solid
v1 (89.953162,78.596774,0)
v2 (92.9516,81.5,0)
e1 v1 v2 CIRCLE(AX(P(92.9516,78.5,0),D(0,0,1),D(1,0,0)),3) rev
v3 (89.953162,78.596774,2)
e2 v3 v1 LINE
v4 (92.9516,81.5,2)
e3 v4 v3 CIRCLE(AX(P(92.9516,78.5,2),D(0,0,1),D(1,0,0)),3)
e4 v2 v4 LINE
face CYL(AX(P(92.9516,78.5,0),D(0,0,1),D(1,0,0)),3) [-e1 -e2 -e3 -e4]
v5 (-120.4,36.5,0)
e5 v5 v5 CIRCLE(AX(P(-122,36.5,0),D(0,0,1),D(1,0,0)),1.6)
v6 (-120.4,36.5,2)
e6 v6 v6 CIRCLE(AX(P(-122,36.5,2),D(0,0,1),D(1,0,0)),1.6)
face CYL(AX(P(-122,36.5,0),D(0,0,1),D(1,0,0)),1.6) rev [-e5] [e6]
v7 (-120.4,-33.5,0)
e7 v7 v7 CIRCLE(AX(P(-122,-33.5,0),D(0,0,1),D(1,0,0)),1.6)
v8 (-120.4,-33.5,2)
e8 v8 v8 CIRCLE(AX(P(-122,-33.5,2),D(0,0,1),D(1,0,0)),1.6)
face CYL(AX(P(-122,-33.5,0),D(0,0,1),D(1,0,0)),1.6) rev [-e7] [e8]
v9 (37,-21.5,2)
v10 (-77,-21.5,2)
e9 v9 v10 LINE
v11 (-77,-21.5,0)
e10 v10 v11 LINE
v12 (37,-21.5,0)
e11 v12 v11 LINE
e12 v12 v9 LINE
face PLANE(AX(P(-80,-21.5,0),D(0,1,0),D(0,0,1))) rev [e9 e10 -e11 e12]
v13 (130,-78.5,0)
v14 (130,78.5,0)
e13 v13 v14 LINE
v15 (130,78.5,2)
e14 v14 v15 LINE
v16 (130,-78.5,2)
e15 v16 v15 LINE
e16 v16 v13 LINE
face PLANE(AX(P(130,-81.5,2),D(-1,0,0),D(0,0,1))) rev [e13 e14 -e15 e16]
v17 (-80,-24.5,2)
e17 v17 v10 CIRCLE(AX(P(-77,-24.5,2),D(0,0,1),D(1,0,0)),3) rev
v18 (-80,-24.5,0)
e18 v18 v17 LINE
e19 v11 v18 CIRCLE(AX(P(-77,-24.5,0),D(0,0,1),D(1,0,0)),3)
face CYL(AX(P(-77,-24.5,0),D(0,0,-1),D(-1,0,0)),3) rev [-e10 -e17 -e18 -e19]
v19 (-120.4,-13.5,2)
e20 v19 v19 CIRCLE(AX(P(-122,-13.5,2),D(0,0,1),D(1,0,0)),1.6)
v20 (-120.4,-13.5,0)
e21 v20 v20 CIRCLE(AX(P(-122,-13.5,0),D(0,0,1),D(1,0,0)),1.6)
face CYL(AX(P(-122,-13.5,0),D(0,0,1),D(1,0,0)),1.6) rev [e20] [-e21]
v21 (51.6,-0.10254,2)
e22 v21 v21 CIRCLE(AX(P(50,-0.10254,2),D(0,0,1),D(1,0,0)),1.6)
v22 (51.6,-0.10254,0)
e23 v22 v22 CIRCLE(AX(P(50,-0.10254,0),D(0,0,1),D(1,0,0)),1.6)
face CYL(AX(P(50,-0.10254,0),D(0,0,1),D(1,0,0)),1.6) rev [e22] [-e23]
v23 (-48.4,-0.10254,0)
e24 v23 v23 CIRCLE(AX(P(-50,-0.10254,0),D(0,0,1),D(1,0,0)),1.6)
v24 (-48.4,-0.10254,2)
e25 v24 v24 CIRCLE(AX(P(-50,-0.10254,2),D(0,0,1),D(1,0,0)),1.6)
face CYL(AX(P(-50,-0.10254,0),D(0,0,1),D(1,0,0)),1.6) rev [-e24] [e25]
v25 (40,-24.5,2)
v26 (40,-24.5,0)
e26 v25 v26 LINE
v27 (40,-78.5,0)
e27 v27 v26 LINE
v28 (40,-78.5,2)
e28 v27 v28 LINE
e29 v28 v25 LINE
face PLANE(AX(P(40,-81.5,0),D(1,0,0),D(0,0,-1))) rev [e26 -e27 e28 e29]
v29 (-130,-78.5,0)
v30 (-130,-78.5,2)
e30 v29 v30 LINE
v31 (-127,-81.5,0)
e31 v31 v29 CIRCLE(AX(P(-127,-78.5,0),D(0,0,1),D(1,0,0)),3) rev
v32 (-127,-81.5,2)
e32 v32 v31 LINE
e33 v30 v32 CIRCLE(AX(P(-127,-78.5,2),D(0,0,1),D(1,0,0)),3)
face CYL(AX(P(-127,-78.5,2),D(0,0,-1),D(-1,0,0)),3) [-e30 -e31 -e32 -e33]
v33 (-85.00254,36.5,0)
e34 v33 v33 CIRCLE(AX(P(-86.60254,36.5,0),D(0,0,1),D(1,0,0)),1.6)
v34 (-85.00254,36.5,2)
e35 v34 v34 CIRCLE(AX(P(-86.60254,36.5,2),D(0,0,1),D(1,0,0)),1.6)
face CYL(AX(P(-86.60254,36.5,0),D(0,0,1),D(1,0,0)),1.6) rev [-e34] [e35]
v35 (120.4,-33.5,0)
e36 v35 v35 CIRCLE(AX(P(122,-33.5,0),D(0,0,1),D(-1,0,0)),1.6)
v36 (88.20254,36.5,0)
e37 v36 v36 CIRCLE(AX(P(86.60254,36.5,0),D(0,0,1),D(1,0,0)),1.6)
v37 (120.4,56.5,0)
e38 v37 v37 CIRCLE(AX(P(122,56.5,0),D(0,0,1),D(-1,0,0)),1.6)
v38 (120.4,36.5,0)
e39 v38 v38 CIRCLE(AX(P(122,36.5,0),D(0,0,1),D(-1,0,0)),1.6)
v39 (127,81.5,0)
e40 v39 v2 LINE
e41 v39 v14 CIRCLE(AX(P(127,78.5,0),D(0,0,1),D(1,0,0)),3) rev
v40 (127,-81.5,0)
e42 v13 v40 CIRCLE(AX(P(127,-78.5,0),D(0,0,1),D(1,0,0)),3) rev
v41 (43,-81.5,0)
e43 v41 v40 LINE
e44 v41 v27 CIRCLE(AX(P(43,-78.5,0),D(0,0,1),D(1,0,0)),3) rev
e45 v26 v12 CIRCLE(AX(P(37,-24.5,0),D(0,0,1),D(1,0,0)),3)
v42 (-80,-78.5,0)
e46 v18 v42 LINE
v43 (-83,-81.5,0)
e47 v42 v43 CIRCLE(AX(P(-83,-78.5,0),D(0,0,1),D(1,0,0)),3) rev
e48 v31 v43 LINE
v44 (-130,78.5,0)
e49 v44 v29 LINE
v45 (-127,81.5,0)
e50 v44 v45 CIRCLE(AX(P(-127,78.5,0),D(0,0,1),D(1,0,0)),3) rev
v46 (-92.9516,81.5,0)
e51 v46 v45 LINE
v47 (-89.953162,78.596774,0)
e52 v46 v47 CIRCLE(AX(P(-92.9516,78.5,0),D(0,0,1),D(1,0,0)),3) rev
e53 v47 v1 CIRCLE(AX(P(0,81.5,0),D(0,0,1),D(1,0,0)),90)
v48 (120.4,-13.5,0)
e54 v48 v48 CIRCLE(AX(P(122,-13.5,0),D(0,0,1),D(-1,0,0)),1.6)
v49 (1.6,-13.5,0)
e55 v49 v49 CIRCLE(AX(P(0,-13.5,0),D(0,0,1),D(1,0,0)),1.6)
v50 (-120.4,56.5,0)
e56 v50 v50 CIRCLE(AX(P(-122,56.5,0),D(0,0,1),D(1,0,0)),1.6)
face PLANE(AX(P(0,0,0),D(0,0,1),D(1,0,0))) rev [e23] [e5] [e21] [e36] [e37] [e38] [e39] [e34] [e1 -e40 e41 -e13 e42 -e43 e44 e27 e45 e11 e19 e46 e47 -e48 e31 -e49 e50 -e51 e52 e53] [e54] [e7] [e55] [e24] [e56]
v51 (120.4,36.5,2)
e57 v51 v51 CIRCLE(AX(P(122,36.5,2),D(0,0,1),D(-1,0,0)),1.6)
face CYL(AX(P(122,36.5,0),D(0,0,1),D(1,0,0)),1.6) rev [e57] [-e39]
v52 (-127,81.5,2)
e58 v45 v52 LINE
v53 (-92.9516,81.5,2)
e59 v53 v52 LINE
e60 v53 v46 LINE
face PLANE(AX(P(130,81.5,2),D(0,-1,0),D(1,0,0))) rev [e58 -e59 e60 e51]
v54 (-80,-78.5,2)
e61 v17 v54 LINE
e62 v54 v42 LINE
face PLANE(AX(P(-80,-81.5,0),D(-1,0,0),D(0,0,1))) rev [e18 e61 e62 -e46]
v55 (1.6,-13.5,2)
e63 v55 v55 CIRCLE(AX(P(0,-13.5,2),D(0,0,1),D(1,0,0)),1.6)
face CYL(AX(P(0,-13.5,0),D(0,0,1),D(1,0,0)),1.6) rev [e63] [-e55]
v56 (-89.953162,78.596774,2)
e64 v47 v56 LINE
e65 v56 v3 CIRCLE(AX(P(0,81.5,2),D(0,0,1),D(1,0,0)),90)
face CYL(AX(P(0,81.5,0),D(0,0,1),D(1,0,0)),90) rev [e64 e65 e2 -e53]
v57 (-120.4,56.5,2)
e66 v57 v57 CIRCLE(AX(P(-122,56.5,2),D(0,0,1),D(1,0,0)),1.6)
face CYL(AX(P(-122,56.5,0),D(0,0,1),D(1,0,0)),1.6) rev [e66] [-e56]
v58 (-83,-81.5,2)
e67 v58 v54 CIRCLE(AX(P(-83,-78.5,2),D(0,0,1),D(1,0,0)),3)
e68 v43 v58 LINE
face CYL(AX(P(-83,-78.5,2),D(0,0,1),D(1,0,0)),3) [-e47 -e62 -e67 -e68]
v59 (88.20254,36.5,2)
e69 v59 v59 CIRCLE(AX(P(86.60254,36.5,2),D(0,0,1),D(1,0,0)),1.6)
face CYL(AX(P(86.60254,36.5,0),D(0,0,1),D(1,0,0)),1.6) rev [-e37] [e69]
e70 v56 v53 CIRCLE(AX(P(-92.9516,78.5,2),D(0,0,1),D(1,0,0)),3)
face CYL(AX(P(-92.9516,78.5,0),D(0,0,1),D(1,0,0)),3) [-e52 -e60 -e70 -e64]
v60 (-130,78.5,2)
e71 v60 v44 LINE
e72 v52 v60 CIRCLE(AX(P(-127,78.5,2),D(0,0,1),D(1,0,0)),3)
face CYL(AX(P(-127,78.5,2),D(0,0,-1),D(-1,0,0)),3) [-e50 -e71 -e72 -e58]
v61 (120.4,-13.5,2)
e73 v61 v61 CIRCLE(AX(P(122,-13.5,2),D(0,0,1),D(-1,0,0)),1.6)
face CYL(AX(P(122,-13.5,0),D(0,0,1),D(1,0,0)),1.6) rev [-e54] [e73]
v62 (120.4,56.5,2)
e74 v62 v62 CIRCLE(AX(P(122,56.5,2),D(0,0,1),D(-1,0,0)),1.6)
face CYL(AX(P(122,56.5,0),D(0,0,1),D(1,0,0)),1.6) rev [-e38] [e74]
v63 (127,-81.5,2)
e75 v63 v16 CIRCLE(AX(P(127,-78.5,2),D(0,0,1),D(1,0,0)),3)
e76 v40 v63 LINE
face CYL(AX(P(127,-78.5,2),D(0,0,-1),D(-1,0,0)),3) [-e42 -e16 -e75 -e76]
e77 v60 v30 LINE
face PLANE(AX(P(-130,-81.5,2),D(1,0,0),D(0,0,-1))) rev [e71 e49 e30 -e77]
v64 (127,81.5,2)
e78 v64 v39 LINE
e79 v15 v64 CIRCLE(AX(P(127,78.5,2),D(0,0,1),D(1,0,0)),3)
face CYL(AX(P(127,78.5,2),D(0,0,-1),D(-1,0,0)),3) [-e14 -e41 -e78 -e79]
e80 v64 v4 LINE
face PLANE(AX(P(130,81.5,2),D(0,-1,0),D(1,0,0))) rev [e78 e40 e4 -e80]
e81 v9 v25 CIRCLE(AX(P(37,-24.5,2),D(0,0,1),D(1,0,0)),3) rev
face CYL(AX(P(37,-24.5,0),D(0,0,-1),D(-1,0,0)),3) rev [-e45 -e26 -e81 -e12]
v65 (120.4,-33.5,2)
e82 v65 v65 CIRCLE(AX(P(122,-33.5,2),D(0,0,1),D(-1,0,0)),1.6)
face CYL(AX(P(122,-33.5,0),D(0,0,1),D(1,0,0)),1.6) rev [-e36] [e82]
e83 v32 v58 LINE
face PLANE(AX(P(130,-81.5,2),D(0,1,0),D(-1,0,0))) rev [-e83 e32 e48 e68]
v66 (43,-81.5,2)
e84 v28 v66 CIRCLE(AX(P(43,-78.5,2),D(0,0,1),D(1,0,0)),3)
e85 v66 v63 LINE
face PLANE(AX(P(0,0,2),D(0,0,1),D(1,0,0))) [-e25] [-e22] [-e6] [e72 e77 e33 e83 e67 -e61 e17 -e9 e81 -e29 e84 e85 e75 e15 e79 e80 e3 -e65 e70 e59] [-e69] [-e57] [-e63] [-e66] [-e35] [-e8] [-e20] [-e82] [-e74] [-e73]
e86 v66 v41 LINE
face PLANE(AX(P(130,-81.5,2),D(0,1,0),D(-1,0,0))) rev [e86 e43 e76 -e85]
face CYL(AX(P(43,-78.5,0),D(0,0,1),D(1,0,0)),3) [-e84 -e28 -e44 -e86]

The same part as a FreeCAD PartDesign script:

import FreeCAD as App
import Part
import Sketcher
from FreeCAD import Vector
Q = App.Units.Quantity


def edges_at(feature, points):
    """Names of the edges that pass closest to the given points."""
    edges = feature.Shape.Edges
    near = lambda p: min(range(len(edges)), key=lambda i: edges[i].distToShape(Part.Vertex(*p))[0])
    return sorted({f"Edge{near(p) + 1}" for p in points})


def add_polygon(sketch, points):
    """Adds a closed chain of lines whose ends are joined by coincident constraints."""
    first, n = sketch.GeometryCount, len(points)
    for a, b in zip(points, points[1:] + points[:1]):
        sketch.addGeometry(Part.LineSegment(App.Vector(*a, 0), App.Vector(*b, 0)), False)
    for i in range(n):
        sketch.addConstraint(Sketcher.Constraint("Coincident", first + i, 2, first + (i + 1) % n, 1))

doc = App.newDocument("Part")
body = doc.addObject("PartDesign::Body", "Body")

# Sketch on XY plane
sketch1 = doc.addObject("Sketcher::SketchObject", "Sketch")
body.addObject(sketch1)
sketch1.AttachmentSupport = (doc.XY_Plane, [""])
sketch1.MapMode = "FlatFace"
add_polygon(sketch1, [(-130, 82), (-130, -82), (130, -82), (130, 82)])  # lines 0-3
sketch1.addConstraint([
    Sketcher.Constraint("Vertical", 0),
    Sketcher.Constraint("Horizontal", 1),
    Sketcher.Constraint("Vertical", 2),
    Sketcher.Constraint("Horizontal", 3),
    Sketcher.Constraint("Symmetric", 0, 2, 2, 2, -1, 1),
    Sketcher.Constraint("DistanceX", 1, 1, 1, 2, Q("260 mm")),
    Sketcher.Constraint("DistanceY", 0, 2, 0, 1, Q("163 mm")),
])
pad1 = doc.addObject("PartDesign::Pad", "Pad")
body.addObject(pad1)
pad1.Profile = sketch1
pad1.Length = 2

# Sketch on XY plane
sketch2 = doc.addObject("Sketcher::SketchObject", "Sketch001")
body.addObject(sketch2)
sketch2.AttachmentSupport = (doc.XY_Plane, [""])
sketch2.MapMode = "FlatFace"
sketch2.AttachmentOffset = App.Placement(Vector(0, 0, 2), App.Rotation())
sketch2.addGeometry([
    Part.Circle(Vector(-122, -33.5, 0), Vector(0, 0, 1), 1.6),  # 0
    Part.Circle(Vector(-122, -13.5, 0), Vector(0, 0, 1), 1.6),  # 1
    Part.Circle(Vector(-122, 36.5, 0), Vector(0, 0, 1), 1.6),  # 2
    Part.Circle(Vector(-122, 56.5, 0), Vector(0, 0, 1), 1.6),  # 3
    Part.Circle(Vector(122, 56.5, 0), Vector(0, 0, 1), 1.6),  # 4
    Part.Circle(Vector(122, 36.5, 0), Vector(0, 0, 1), 1.6),  # 5
    Part.Circle(Vector(122, -13.5, 0), Vector(0, 0, 1), 1.6),  # 6
    Part.Circle(Vector(122, -33.5, 0), Vector(0, 0, 1), 1.6),  # 7
], False)
sketch2.addConstraint([
    Sketcher.Constraint("Equal", 0, 1),
    Sketcher.Constraint("Equal", 1, 2),
    Sketcher.Constraint("Equal", 2, 3),
    Sketcher.Constraint("Equal", 3, 4),
    Sketcher.Constraint("Equal", 4, 5),
    Sketcher.Constraint("Equal", 5, 6),
    Sketcher.Constraint("Equal", 6, 7),
    Sketcher.Constraint("Symmetric", 3, 3, 4, 3, -2),
    Sketcher.Constraint("Symmetric", 2, 3, 5, 3, -2),
    Sketcher.Constraint("Symmetric", 1, 3, 6, 3, -2),
    Sketcher.Constraint("Symmetric", 0, 3, 7, 3, -2),
    Sketcher.Constraint("Vertical", 0, 3, 1, 3),
    Sketcher.Constraint("Vertical", 1, 3, 2, 3),
    Sketcher.Constraint("Vertical", 2, 3, 3, 3),
    Sketcher.Constraint("Diameter", 0, Q("3.2 mm")),
    Sketcher.Constraint("DistanceX", 0, 3, -1, 1, Q("122 mm")),
    Sketcher.Constraint("DistanceY", 0, 3, 1, 3, Q("20 mm")),
    Sketcher.Constraint("DistanceY", 1, 3, 2, 3, Q("50 mm")),
    Sketcher.Constraint("DistanceY", 2, 3, 3, 3, Q("20 mm")),
    Sketcher.Constraint("DistanceY", 0, 3, -1, 1, Q("33.5 mm")),
])
pocket1 = doc.addObject("PartDesign::Pocket", "Pocket")
body.addObject(pocket1)
pocket1.Profile = sketch2
pocket1.Length = 2
doc.recompute()

fillet = doc.addObject("PartDesign::Fillet", "Fillet")
body.addObject(fillet)
fillet.Base = (pocket1, edges_at(pocket1, [
    (-130, 81.5, 1),
    (130, 81.5, 1),
    (130, -81.5, 1),
    (-130, -81.5, 1),
]))
fillet.Radius = 3

# Sketch on XY plane
sketch3 = doc.addObject("Sketcher::SketchObject", "Sketch002")
body.addObject(sketch3)
sketch3.AttachmentSupport = (doc.XY_Plane, [""])
sketch3.MapMode = "FlatFace"
sketch3.AttachmentOffset = App.Placement(Vector(0, 0, 2), App.Rotation())
sketch3.addGeometry([
    Part.Circle(Vector(0, 81.5, 0), Vector(0, 0, 1), 90),  # 0
    Part.Circle(Vector(0, -13.5, 0), Vector(0, 0, 1), 1.6),  # 1
    Part.Circle(Vector(-50, -0.1, 0), Vector(0, 0, 1), 1.6),  # 2
    Part.Circle(Vector(-86.6, 36.5, 0), Vector(0, 0, 1), 1.6),  # 3
    Part.Circle(Vector(86.6, 36.5, 0), Vector(0, 0, 1), 1.6),  # 4
    Part.Circle(Vector(50, -0.1, 0), Vector(0, 0, 1), 1.6),  # 5
], False)
sketch3.addConstraint([
    Sketcher.Constraint("Equal", 1, 2),
    Sketcher.Constraint("Equal", 2, 3),
    Sketcher.Constraint("Equal", 3, 4),
    Sketcher.Constraint("Equal", 4, 5),
    Sketcher.Constraint("Symmetric", 3, 3, 4, 3, -2),
    Sketcher.Constraint("Symmetric", 2, 3, 5, 3, -2),
    Sketcher.Constraint("PointOnObject", 0, 3, -2),
    Sketcher.Constraint("PointOnObject", 1, 3, -2),
    Sketcher.Constraint("Diameter", 0, Q("180 mm")),
    Sketcher.Constraint("Diameter", 1, Q("3.2 mm")),
    Sketcher.Constraint("DistanceX", 2, 3, -1, 1, Q("50 mm")),
    Sketcher.Constraint("DistanceY", 1, 3, 0, 3, Q("95 mm")),
    Sketcher.Constraint("DistanceY", 3, 3, 0, 3, Q("45 mm")),
    Sketcher.Constraint("DistanceY", -1, 1, 0, 3, Q("81.5 mm")),
    Sketcher.Constraint("DistanceY", 2, 3, -1, 1, Q("0.10254 mm")),
    Sketcher.Constraint("DistanceX", 3, 3, -1, 1, Q("86.60254 mm")),
])
pocket2 = doc.addObject("PartDesign::Pocket", "Pocket001")
body.addObject(pocket2)
pocket2.Profile = sketch3
pocket2.Length = 2

# Sketch on XY plane
sketch4 = doc.addObject("Sketcher::SketchObject", "Sketch003")
body.addObject(sketch4)
sketch4.AttachmentSupport = (doc.XY_Plane, [""])
sketch4.MapMode = "FlatFace"
sketch4.AttachmentOffset = App.Placement(Vector(0, 0, 2), App.Rotation())
add_polygon(sketch4, [(-80, -22), (-80, -82), (40, -82), (40, -22)])  # lines 0-3
sketch4.addConstraint([
    Sketcher.Constraint("Vertical", 0),
    Sketcher.Constraint("Horizontal", 1),
    Sketcher.Constraint("Vertical", 2),
    Sketcher.Constraint("Horizontal", 3),
    Sketcher.Constraint("DistanceX", 1, 1, 1, 2, Q("120 mm")),
    Sketcher.Constraint("DistanceY", 0, 2, 0, 1, Q("60 mm")),
    Sketcher.Constraint("DistanceX", 0, 2, -1, 1, Q("80 mm")),
    Sketcher.Constraint("DistanceY", 0, 2, -1, 1, Q("81.5 mm")),
])
pocket3 = doc.addObject("PartDesign::Pocket", "Pocket002")
body.addObject(pocket3)
pocket3.Profile = sketch4
pocket3.Length = 2
doc.recompute()

fillet2 = doc.addObject("PartDesign::Fillet", "Fillet001")
body.addObject(fillet2)
fillet2.Base = (pocket3, edges_at(pocket3, [
    (-80, -81.5, 1),
    (-80, -21.5, 1),
    (40, -21.5, 1),
    (40, -81.5, 1),
    (90, 81.5, 1),
    (-90, 81.5, 1),
]))
fillet2.Radius = 3

doc.recompute()
